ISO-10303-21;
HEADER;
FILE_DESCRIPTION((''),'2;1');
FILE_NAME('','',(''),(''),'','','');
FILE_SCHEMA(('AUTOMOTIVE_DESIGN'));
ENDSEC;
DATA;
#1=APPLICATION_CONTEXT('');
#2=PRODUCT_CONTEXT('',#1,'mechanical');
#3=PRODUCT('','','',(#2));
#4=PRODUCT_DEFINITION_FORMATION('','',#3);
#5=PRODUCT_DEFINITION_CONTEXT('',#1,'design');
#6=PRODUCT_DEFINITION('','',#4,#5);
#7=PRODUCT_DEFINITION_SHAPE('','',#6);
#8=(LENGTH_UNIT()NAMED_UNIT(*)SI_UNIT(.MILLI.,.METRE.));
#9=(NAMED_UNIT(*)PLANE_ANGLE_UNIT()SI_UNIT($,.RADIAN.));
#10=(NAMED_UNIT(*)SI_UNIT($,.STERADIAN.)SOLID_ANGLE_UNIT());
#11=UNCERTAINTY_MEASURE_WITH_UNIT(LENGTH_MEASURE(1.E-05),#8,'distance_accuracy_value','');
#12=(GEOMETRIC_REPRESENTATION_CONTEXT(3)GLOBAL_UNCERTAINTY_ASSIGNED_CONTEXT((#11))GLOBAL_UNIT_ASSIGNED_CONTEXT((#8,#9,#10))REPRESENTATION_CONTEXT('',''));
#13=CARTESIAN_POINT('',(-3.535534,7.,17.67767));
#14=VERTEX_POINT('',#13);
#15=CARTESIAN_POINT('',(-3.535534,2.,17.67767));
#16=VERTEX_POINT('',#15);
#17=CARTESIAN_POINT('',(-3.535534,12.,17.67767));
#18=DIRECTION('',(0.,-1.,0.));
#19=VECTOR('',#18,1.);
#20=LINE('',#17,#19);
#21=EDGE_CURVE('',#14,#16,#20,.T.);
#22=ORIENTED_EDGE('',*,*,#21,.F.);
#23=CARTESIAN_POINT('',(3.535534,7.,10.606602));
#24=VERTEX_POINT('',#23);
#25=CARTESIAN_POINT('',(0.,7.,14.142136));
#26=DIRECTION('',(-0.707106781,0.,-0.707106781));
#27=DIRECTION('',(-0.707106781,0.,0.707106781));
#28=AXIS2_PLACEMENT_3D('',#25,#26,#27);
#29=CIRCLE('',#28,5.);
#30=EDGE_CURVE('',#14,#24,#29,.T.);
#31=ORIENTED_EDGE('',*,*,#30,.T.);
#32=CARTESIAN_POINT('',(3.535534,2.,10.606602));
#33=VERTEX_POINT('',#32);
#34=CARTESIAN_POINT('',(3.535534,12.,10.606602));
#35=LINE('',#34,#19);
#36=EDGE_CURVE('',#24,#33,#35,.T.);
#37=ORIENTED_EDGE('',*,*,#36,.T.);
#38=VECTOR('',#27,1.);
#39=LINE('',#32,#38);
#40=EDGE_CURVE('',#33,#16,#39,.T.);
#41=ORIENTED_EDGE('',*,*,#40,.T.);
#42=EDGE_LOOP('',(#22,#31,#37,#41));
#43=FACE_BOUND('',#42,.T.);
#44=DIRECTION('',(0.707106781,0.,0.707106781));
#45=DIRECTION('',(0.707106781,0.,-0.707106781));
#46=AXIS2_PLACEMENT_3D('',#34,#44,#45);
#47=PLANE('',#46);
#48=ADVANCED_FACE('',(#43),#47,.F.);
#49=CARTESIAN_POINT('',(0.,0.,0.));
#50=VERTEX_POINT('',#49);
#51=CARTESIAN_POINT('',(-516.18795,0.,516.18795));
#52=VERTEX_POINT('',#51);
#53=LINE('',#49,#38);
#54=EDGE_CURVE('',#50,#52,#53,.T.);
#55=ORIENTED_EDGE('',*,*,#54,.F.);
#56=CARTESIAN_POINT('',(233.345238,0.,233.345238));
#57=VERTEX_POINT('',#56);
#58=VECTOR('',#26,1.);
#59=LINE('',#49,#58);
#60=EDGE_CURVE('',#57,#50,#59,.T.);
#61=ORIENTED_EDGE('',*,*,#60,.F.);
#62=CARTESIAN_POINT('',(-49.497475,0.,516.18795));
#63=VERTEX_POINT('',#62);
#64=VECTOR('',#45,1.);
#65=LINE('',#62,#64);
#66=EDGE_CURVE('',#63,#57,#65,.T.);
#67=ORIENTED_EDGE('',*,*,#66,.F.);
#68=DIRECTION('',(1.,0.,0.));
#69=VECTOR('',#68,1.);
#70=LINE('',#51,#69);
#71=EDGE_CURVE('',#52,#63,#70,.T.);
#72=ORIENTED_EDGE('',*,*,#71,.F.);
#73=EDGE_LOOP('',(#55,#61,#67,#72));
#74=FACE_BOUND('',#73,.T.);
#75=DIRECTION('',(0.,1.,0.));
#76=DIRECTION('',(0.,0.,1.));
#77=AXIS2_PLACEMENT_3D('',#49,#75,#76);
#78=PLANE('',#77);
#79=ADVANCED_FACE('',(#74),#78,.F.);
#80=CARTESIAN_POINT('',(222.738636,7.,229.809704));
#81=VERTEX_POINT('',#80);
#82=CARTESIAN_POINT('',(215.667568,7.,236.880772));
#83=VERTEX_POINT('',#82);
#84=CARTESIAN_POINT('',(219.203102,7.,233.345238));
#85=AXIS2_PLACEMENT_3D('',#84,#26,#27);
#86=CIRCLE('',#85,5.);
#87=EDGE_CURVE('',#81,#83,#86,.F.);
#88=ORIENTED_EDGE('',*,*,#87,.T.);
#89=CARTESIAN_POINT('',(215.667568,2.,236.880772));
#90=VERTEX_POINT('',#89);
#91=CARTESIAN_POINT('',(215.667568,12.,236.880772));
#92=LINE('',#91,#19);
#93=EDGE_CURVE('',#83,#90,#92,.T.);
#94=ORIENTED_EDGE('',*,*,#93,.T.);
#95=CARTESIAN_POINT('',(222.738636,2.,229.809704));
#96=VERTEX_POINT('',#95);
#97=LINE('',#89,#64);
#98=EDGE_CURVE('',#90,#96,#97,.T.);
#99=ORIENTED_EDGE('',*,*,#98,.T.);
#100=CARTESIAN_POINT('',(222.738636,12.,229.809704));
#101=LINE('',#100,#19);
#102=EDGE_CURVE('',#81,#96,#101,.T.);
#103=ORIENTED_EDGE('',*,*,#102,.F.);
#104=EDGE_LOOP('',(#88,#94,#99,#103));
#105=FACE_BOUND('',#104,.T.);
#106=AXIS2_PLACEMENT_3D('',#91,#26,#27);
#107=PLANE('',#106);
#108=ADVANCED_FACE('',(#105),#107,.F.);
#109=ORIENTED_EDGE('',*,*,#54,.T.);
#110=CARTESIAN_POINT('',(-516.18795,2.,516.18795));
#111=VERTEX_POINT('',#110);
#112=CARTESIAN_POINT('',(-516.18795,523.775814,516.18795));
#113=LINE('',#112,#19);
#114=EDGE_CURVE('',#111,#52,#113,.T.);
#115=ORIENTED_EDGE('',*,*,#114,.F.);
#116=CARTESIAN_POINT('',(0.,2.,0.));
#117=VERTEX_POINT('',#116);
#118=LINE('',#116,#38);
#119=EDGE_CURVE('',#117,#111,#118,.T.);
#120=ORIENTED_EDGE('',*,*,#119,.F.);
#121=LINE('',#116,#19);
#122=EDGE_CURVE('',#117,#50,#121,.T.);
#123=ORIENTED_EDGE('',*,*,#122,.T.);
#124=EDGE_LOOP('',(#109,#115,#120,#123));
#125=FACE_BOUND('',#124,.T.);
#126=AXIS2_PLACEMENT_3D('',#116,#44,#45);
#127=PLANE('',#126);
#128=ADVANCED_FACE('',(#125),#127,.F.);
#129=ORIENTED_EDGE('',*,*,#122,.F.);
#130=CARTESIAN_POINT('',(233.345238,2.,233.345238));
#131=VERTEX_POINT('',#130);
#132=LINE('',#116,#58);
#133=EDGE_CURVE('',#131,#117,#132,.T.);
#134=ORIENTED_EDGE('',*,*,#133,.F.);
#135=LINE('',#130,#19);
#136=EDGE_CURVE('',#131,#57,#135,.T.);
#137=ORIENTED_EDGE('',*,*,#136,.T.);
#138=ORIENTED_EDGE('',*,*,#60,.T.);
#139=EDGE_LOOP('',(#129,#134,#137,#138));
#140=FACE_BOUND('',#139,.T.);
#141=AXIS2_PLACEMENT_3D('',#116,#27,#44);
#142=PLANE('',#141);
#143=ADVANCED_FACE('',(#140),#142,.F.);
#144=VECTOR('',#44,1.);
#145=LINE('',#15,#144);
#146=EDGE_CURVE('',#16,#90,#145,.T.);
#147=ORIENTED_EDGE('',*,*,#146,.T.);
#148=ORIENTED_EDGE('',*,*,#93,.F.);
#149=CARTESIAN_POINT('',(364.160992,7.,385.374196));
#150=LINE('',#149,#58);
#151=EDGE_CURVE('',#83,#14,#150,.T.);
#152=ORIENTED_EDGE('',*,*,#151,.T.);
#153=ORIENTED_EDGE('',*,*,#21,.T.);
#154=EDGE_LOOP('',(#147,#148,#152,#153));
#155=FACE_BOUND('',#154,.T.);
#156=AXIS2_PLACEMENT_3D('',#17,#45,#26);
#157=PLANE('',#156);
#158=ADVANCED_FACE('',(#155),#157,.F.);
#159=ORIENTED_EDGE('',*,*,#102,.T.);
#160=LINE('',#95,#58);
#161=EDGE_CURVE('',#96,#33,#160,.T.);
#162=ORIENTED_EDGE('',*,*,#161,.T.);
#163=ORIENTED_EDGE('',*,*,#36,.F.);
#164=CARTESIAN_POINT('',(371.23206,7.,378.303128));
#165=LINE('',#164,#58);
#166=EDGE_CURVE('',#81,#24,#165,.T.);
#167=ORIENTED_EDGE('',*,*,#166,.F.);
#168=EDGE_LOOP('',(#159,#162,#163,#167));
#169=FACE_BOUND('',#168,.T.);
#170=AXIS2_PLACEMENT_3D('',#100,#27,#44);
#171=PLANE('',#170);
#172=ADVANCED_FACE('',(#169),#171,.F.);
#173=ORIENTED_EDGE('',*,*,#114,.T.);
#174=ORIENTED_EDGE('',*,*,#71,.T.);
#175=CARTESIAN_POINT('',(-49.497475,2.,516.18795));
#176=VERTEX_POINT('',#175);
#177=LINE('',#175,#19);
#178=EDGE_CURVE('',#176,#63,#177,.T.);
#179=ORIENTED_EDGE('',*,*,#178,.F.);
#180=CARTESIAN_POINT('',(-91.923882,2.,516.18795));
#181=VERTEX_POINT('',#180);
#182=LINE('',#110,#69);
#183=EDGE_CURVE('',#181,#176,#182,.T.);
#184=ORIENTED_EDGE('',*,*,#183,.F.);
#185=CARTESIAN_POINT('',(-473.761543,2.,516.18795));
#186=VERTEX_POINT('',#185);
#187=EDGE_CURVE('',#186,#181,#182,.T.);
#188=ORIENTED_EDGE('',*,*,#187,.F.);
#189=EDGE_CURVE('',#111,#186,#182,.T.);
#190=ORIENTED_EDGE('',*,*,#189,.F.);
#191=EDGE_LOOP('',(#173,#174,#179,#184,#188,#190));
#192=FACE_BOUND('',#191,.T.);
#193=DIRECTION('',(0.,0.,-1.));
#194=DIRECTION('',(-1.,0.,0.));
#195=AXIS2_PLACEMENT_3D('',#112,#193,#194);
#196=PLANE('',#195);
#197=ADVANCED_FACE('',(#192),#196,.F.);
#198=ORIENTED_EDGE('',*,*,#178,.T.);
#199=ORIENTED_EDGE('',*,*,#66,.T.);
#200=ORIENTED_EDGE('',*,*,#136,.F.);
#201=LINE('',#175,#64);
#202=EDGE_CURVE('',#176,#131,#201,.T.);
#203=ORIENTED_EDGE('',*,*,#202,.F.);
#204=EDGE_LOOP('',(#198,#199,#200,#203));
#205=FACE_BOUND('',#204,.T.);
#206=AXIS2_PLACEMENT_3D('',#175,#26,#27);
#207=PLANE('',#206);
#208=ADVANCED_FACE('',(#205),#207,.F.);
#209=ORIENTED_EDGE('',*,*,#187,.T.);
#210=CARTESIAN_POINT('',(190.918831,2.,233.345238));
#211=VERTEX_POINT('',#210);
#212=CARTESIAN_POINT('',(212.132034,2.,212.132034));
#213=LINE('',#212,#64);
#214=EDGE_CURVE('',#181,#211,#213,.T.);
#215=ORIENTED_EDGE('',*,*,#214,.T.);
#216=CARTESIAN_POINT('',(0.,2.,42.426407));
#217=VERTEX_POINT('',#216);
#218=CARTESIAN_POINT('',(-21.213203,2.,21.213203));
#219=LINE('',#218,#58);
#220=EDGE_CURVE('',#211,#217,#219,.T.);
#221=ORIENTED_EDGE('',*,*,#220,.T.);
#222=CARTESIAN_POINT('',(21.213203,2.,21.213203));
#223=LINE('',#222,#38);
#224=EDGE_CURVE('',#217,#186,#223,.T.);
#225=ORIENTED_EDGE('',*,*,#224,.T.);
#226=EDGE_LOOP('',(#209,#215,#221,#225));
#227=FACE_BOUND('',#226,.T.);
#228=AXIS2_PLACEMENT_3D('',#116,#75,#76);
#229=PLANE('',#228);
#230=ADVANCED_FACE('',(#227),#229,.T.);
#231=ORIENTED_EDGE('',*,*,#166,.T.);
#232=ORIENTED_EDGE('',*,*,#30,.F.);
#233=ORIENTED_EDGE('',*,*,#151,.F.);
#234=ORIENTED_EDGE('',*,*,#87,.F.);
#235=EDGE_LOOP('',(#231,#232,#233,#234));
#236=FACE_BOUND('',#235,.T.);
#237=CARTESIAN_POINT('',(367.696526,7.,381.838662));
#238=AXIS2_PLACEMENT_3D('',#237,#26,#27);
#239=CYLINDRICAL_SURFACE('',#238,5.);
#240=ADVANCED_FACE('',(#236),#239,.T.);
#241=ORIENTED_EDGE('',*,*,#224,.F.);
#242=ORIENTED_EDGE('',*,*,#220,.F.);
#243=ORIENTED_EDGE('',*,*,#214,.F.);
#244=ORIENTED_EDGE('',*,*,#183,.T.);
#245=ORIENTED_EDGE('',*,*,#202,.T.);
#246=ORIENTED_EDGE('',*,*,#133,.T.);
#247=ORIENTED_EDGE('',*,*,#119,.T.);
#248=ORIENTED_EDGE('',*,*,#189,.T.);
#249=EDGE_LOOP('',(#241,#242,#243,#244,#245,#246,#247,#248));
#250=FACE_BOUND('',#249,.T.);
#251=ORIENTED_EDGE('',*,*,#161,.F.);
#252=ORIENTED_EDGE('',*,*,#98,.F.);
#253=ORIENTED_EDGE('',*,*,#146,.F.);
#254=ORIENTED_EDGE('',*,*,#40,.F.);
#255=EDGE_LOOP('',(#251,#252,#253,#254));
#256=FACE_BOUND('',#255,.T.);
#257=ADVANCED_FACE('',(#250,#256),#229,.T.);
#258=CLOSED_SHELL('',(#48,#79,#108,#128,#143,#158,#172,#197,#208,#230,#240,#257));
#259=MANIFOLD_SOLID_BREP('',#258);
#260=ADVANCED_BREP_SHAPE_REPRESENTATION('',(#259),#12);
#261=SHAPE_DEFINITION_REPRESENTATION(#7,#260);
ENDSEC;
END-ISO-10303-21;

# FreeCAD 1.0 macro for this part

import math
import FreeCAD as App
import Part
import Sketcher
Q = App.Units.Quantity

doc = App.newDocument("Part")
body = doc.addObject("PartDesign::Body", "Body")

sketch1 = body.newObject("Sketcher::SketchObject", "Sketch")
sketch1.AttachmentSupport = (doc.getObject("XZ_Plane"), [""])
sketch1.MapMode = "FlatFace"
sketch1.addGeometry(Part.LineSegment(App.Vector(-49, 516, 0), App.Vector(233, 233, 0)), False)
sketch1.addGeometry(Part.LineSegment(App.Vector(233, 233, 0), App.Vector(0, 0, 0)), False)
sketch1.addGeometry(Part.LineSegment(App.Vector(0, 0, 0), App.Vector(-283, 283, 0)), False)
sketch1.addGeometry(Part.LineSegment(App.Vector(-283, 283, 0), App.Vector(-49, 516, 0)), False)
sketch1.addConstraint(Sketcher.Constraint("Coincident", 0, 2, 1, 1))
sketch1.addConstraint(Sketcher.Constraint("Coincident", 1, 2, 2, 1))
sketch1.addConstraint(Sketcher.Constraint("Coincident", 2, 2, 3, 1))
sketch1.addConstraint(Sketcher.Constraint("Coincident", 3, 2, 0, 1))
sketch1.addConstraint(Sketcher.Constraint("Coincident", 1, 2, -1, 1))
sketch1.addConstraint(Sketcher.Constraint("Perpendicular", 0, 1))
sketch1.addConstraint(Sketcher.Constraint("Perpendicular", 1, 2))
sketch1.addConstraint(Sketcher.Constraint("Perpendicular", 2, 3))
sketch1.addConstraint(Sketcher.Constraint("Angle", 0, Q("-45 deg")))
sketch1.addConstraint(Sketcher.Constraint("Distance", 0, Q("400 mm")))
sketch1.addConstraint(Sketcher.Constraint("Distance", 1, Q("330 mm")))
pad1 = body.newObject("PartDesign::Pad", "Pad")
pad1.Profile = sketch1
pad1.Length = 2
pad1.Reversed = True

sketch2 = body.newObject("Sketcher::SketchObject", "Sketch001")
sketch2.AttachmentSupport = (doc.getObject("XZ_Plane"), [""])
sketch2.MapMode = "FlatFace"
sketch2.AttachmentOffset = App.Placement(App.Vector(0, 0, -2), App.Rotation())
sketch2.addGeometry(Part.LineSegment(App.Vector(4, 11, 0), App.Vector(-4, 18, 0)), False)
sketch2.addGeometry(Part.LineSegment(App.Vector(-4, 18, 0), App.Vector(216, 237, 0)), False)
sketch2.addGeometry(Part.LineSegment(App.Vector(216, 237, 0), App.Vector(223, 230, 0)), False)
sketch2.addGeometry(Part.LineSegment(App.Vector(223, 230, 0), App.Vector(4, 11, 0)), False)
sketch2.addConstraint(Sketcher.Constraint("Coincident", 0, 2, 1, 1))
sketch2.addConstraint(Sketcher.Constraint("Coincident", 1, 2, 2, 1))
sketch2.addConstraint(Sketcher.Constraint("Coincident", 2, 2, 3, 1))
sketch2.addConstraint(Sketcher.Constraint("Coincident", 3, 2, 0, 1))
sketch2.addConstraint(Sketcher.Constraint("Perpendicular", 0, 1))
sketch2.addConstraint(Sketcher.Constraint("Perpendicular", 1, 2))
sketch2.addConstraint(Sketcher.Constraint("Perpendicular", 2, 3))
sketch2.addConstraint(Sketcher.Constraint("Angle", 0, Q("135 deg")))
sketch2.addConstraint(Sketcher.Constraint("Distance", 0, Q("10 mm")))
sketch2.addConstraint(Sketcher.Constraint("Distance", 1, Q("310 mm")))
sketch2.addConstraint(Sketcher.Constraint("DistanceY", -1, 1, 3, 2, Q("10.606602 mm")))
sketch2.addConstraint(Sketcher.Constraint("DistanceX", -1, 1, 1, 2, Q("215.667568 mm")))
pad2 = body.newObject("PartDesign::Pad", "Pad001")
pad2.Profile = sketch2
pad2.Length = 10
pad2.Reversed = True

sketch3 = body.newObject("Sketcher::SketchObject", "Sketch002")
sketch3.Placement = App.Placement(App.Vector(7.071068, 0, 7.071068), App.Rotation(App.Vector(-0.707106781, 0, 0.707106781), App.Vector(0, 0.999999999, 0), App.Vector(-0.707106781, 0, -0.707106781), "ZXY"))
sketch3.addGeometry(Part.LineSegment(App.Vector(5, 12, 0), App.Vector(5, 7, 0)), False)
sketch3.addGeometry(Part.ArcOfCircle(Part.Circle(App.Vector(10, 7, 0), App.Vector(0, 0, 1), 5), math.radians(90), math.radians(180)), False)
sketch3.addGeometry(Part.LineSegment(App.Vector(10, 12, 0), App.Vector(5, 12, 0)), False)
sketch3.addConstraint(Sketcher.Constraint("Tangent", 0, 2, 1, 2))
sketch3.addConstraint(Sketcher.Constraint("Tangent", 1, 1, 2, 1))
sketch3.addConstraint(Sketcher.Constraint("Coincident", 2, 2, 0, 1))
sketch3.addConstraint(Sketcher.Constraint("Vertical", 0))
sketch3.addConstraint(Sketcher.Constraint("Horizontal", 2))
sketch3.addConstraint(Sketcher.Constraint("Radius", 1, Q("5 mm")))
sketch3.addConstraint(Sketcher.Constraint("DistanceX", -1, 1, 1, 3, Q("10 mm")))
sketch3.addConstraint(Sketcher.Constraint("DistanceY", -1, 1, 1, 3, Q("7 mm")))
pocket1 = body.newObject("PartDesign::Pocket", "Pocket")
pocket1.Profile = sketch3
pocket1.Type = "UpToFirst"

sketch4 = body.newObject("Sketcher::SketchObject", "Sketch003")
sketch4.Placement = App.Placement(App.Vector(7.071068, 0, 7.071068), App.Rotation(App.Vector(-0.707106781, 0, 0.707106781), App.Vector(0, 0.999999999, 0), App.Vector(-0.707106781, 0, -0.707106781), "ZXY"))
sketch4.addGeometry(Part.LineSegment(App.Vector(15, 12, 0), App.Vector(10, 12, 0)), False)
sketch4.addGeometry(Part.ArcOfCircle(Part.Circle(App.Vector(10, 7, 0), App.Vector(0, 0, 1), 5), math.radians(0), math.radians(90)), False)
sketch4.addGeometry(Part.LineSegment(App.Vector(15, 7, 0), App.Vector(15, 12, 0)), False)
sketch4.addConstraint(Sketcher.Constraint("Tangent", 0, 2, 1, 2))
sketch4.addConstraint(Sketcher.Constraint("Tangent", 1, 1, 2, 1))
sketch4.addConstraint(Sketcher.Constraint("Coincident", 2, 2, 0, 1))
sketch4.addConstraint(Sketcher.Constraint("Horizontal", 0))
sketch4.addConstraint(Sketcher.Constraint("Vertical", 2))
sketch4.addConstraint(Sketcher.Constraint("Radius", 1, Q("5 mm")))
sketch4.addConstraint(Sketcher.Constraint("DistanceX", -1, 1, 1, 3, Q("10 mm")))
sketch4.addConstraint(Sketcher.Constraint("DistanceY", -1, 1, 1, 3, Q("7 mm")))
pocket2 = body.newObject("PartDesign::Pocket", "Pocket001")
pocket2.Profile = sketch4
pocket2.Type = "UpToFirst"

sketch5 = body.newObject("Sketcher::SketchObject", "Sketch004")
sketch5.AttachmentSupport = (doc.getObject("XZ_Plane"), [""])
sketch5.MapMode = "FlatFace"
sketch5.addGeometry(Part.LineSegment(App.Vector(-283, 283, 0), App.Vector(-516, 516, 0)), False)
sketch5.addGeometry(Part.LineSegment(App.Vector(-516, 516, 0), App.Vector(-49, 516, 0)), False)
sketch5.addGeometry(Part.LineSegment(App.Vector(-49, 516, 0), App.Vector(-283, 283, 0)), False)
sketch5.addConstraint(Sketcher.Constraint("Coincident", 0, 2, 1, 1))
sketch5.addConstraint(Sketcher.Constraint("Coincident", 1, 2, 2, 1))
sketch5.addConstraint(Sketcher.Constraint("Coincident", 2, 2, 0, 1))
sketch5.addConstraint(Sketcher.Constraint("Horizontal", 1))
sketch5.addConstraint(Sketcher.Constraint("Perpendicular", 0, 2))
sketch5.addConstraint(Sketcher.Constraint("Equal", 0, 2))
sketch5.addConstraint(Sketcher.Constraint("Distance", 0, Q("330 mm")))
sketch5.addConstraint(Sketcher.Constraint("DistanceX", 0, 2, -1, 1, Q("516.18795 mm")))
sketch5.addConstraint(Sketcher.Constraint("DistanceY", -1, 1, 0, 2, Q("516.18795 mm")))
pad3 = body.newObject("PartDesign::Pad", "Pad002")
pad3.Profile = sketch5
pad3.Length = 2
pad3.Reversed = True

doc.recompute()
